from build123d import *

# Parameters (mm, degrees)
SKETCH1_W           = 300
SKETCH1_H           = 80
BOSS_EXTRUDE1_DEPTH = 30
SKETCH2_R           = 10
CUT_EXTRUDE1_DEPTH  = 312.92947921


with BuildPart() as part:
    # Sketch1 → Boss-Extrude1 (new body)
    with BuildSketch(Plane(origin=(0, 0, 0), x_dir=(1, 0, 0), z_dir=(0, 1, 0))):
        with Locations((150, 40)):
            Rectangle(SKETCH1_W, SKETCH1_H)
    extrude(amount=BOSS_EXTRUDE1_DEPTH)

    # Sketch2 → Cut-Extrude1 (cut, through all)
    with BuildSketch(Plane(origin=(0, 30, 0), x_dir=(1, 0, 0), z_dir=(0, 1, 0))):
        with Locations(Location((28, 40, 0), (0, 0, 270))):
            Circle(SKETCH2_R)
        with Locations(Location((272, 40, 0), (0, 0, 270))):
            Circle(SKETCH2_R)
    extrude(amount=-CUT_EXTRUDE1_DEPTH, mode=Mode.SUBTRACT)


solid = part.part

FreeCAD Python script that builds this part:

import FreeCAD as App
import Part
import Sketcher
from FreeCAD import Vector


def add_polygon(sketch, points):
    """Adds a closed chain of lines whose ends are joined by coincident constraints."""
    first, n = sketch.GeometryCount, len(points)
    for a, b in zip(points, points[1:] + points[:1]):
        sketch.addGeometry(Part.LineSegment(App.Vector(*a, 0), App.Vector(*b, 0)), False)
    for i in range(n):
        sketch.addConstraint(Sketcher.Constraint("Coincident", first + i, 2, first + (i + 1) % n, 1))

doc = App.newDocument("Part")
body = doc.addObject("PartDesign::Body", "Body")

# Sketch on XZ plane
sketch1 = body.newObject("Sketcher::SketchObject", "Sketch")
sketch1.AttachmentSupport = (doc.getObject("XZ_Plane"), [""])
sketch1.MapMode = "FlatFace"
add_polygon(sketch1, [(0, -80), (0, 0), (300, 0), (300, -80)])  # lines 0-3
sketch1.addConstraint(Sketcher.Constraint("Vertical", 0))
sketch1.addConstraint(Sketcher.Constraint("Horizontal", 1))
sketch1.addConstraint(Sketcher.Constraint("Vertical", 2))
sketch1.addConstraint(Sketcher.Constraint("Horizontal", 3))
sketch1.addConstraint(Sketcher.Constraint("Coincident", 0, 2, -1, 1))
sketch1.addConstraint(Sketcher.Constraint("DistanceX", 1, 1, 1, 2, 300.0))
sketch1.addConstraint(Sketcher.Constraint("DistanceY", 0, 1, 0, 2, 80.0))
pad1 = body.newObject("PartDesign::Pad", "Pad")
pad1.Profile = sketch1
pad1.Length = 30
pad1.Reversed = True

# Sketch on XZ plane
sketch2 = body.newObject("Sketcher::SketchObject", "Sketch001")
sketch2.AttachmentSupport = (doc.getObject("XZ_Plane"), [""])
sketch2.MapMode = "FlatFace"
sketch2.AttachmentOffset = App.Placement(Vector(0, 0, -30), App.Rotation())
sketch2.addGeometry(Part.Circle(Vector(28, -40, 0), Vector(0, 0, 1), 10), False)
sketch2.addGeometry(Part.Circle(Vector(272, -40, 0), Vector(0, 0, 1), 10), False)
sketch2.addConstraint(Sketcher.Constraint("Equal", 0, 1))
sketch2.addConstraint(Sketcher.Constraint("Horizontal", 0, 3, 1, 3))
sketch2.addConstraint(Sketcher.Constraint("Diameter", 0, 20.0))
sketch2.addConstraint(Sketcher.Constraint("DistanceX", -1, 1, 0, 3, 28.0))
sketch2.addConstraint(Sketcher.Constraint("DistanceY", 0, 3, -1, 1, 40.0))
sketch2.addConstraint(Sketcher.Constraint("DistanceX", -1, 1, 1, 3, 272.0))
pocket1 = body.newObject("PartDesign::Pocket", "Pocket")
pocket1.Profile = sketch2
pocket1.Type = "ThroughAll"
pocket1.Reversed = True

doc.recompute()
